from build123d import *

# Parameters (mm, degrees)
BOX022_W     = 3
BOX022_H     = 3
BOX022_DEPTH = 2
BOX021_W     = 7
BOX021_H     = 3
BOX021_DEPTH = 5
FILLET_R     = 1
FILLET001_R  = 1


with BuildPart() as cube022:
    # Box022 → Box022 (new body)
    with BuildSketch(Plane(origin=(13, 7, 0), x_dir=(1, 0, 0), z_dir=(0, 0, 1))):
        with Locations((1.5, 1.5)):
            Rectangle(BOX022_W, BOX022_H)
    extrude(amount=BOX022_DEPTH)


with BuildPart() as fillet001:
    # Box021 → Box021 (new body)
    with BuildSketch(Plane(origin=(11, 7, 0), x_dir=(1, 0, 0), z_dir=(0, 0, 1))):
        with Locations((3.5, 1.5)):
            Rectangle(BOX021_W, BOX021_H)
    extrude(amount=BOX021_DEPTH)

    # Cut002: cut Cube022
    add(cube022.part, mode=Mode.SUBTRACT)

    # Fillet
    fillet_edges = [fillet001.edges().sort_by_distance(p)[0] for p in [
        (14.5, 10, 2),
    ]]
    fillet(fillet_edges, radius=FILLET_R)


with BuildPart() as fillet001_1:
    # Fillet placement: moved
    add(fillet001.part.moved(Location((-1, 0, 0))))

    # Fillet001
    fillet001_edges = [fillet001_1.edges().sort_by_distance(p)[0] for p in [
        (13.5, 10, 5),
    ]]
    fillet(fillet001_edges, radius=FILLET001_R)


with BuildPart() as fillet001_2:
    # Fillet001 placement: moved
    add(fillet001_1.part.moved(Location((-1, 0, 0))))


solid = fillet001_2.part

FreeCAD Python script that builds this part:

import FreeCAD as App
import Part
import Sketcher

V = App.Vector


def edges_at(feature, points):
    """Names of the edges that pass closest to the given points."""
    edges = feature.Shape.Edges
    near = lambda p: min(range(len(edges)), key=lambda i: edges[i].distToShape(Part.Vertex(*p))[0])
    return sorted({f"Edge{near(p) + 1}" for p in points})

doc = App.newDocument("Part")
body = doc.addObject("PartDesign::Body", "Body")

# Sketch on XY plane
sketch1 = body.newObject("Sketcher::SketchObject", "Sketch")
sketch1.AttachmentSupport = (doc.getObject("XY_Plane"), [""])
sketch1.MapMode = "FlatFace"
sketch1.addGeometry([
    Part.LineSegment(V(13, 10, 0), V(13, 7, 0)),
    Part.LineSegment(V(13, 7, 0), V(16, 7, 0)),
    Part.LineSegment(V(16, 7, 0), V(16, 10, 0)),
    Part.LineSegment(V(16, 10, 0), V(13, 10, 0)),
], False)
sketch1.addConstraint([
    Sketcher.Constraint("Coincident", 0, 2, 1, 1),
    Sketcher.Constraint("Coincident", 1, 2, 2, 1),
    Sketcher.Constraint("Coincident", 2, 2, 3, 1),
    Sketcher.Constraint("Coincident", 3, 2, 0, 1),
    Sketcher.Constraint("Vertical", 0),
    Sketcher.Constraint("Horizontal", 1),
    Sketcher.Constraint("Vertical", 2),
    Sketcher.Constraint("Horizontal", 3),
    Sketcher.Constraint("Equal", 3, 0),
    Sketcher.Constraint("DistanceX", 1, 1, 1, 2, 3.0),
    Sketcher.Constraint("DistanceX", -1, 1, 0, 2, 13.0),
    Sketcher.Constraint("DistanceY", -1, 1, 0, 2, 7.0),
])
pad1 = body.newObject("PartDesign::Pad", "Pad")
pad1.Profile = sketch1
pad1.Length = 2
body2 = doc.addObject("PartDesign::Body", "Body001")

# Sketch on XY plane
sketch2 = body2.newObject("Sketcher::SketchObject", "Sketch001")
sketch2.AttachmentSupport = (doc.getObject("XY_Plane001"), [""])
sketch2.MapMode = "FlatFace"
sketch2.addGeometry([
    Part.LineSegment(V(11, 10, 0), V(11, 7, 0)),
    Part.LineSegment(V(11, 7, 0), V(18, 7, 0)),
    Part.LineSegment(V(18, 7, 0), V(18, 10, 0)),
    Part.LineSegment(V(18, 10, 0), V(11, 10, 0)),
], False)
sketch2.addConstraint([
    Sketcher.Constraint("Coincident", 0, 2, 1, 1),
    Sketcher.Constraint("Coincident", 1, 2, 2, 1),
    Sketcher.Constraint("Coincident", 2, 2, 3, 1),
    Sketcher.Constraint("Coincident", 3, 2, 0, 1),
    Sketcher.Constraint("Vertical", 0),
    Sketcher.Constraint("Horizontal", 1),
    Sketcher.Constraint("Vertical", 2),
    Sketcher.Constraint("Horizontal", 3),
    Sketcher.Constraint("DistanceX", 1, 1, 1, 2, 7.0),
    Sketcher.Constraint("DistanceY", 0, 2, 0, 1, 3.0),
    Sketcher.Constraint("DistanceX", -1, 1, 0, 2, 11.0),
    Sketcher.Constraint("DistanceY", -1, 1, 0, 2, 7.0),
])
pad2 = body2.newObject("PartDesign::Pad", "Pad001")
pad2.Profile = sketch2
pad2.Length = 5
doc.recompute()

boolean = body2.newObject("PartDesign::Boolean", "Boolean")
boolean.Type = "Cut"
boolean.addObjects([body])
doc.recompute()

fillet = body2.newObject("PartDesign::Fillet", "Fillet")
fillet.Base = (boolean, edges_at(boolean, [(14.5, 10, 2)]))
fillet.Radius = 1
body3 = doc.addObject("PartDesign::Body", "Body002")
doc.recompute()

body2.Placement = App.Placement(V(-1, 0, 0), App.Rotation(V(0, 0, 1), 0))
boolean2 = body3.newObject("PartDesign::Boolean", "Boolean001")
boolean2.Type = "Fuse"
boolean2.addObjects([body2])
doc.recompute()

fillet2 = body3.newObject("PartDesign::Fillet", "Fillet001")
fillet2.Base = (boolean2, edges_at(boolean2, [(13.5, 10, 5)]))
fillet2.Radius = 1
body4 = doc.addObject("PartDesign::Body", "Body003")
doc.recompute()

body3.Placement = App.Placement(V(-1, 0, 0), App.Rotation(V(0, 0, 1), 0))
boolean3 = body4.newObject("PartDesign::Boolean", "Boolean002")
boolean3.Type = "Fuse"
boolean3.addObjects([body3])

doc.recompute()
